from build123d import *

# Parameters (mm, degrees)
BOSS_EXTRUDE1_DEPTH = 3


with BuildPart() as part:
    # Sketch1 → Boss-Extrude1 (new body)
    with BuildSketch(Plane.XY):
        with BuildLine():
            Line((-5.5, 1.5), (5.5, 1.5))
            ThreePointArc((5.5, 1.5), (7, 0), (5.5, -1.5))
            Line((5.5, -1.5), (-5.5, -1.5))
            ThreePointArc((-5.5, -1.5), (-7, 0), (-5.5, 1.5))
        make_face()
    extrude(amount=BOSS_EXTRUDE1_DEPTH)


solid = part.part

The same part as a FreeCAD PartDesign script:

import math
import FreeCAD as App
import Part
import Sketcher
from FreeCAD import Vector
Q = App.Units.Quantity

doc = App.newDocument("Part")
params = doc.addObject("Spreadsheet::Sheet", "Params")
for row, (alias, value) in enumerate([
    ("sketch1_radius", "1.5 mm"),
    ("sketch1_width", "11 mm"),
    ("pad1_length", "3 mm"),
], start=1):
    params.set(f"A{row}", alias)
    params.set(f"B{row}", "=" + value)
    params.setAlias(f"B{row}", alias)

body = doc.addObject("PartDesign::Body", "Body")

# Sketch on XY plane
sketch1 = body.newObject("Sketcher::SketchObject", "Sketch")
sketch1.AttachmentSupport = (doc.getObject("XY_Plane"), [""])
sketch1.MapMode = "FlatFace"
sketch1.addGeometry([
    Part.LineSegment(Vector(5.5, 1.5, 0), Vector(-5.5, 1.5, 0)),
    Part.ArcOfCircle(Part.Circle(Vector(-5.5, 0, 0), Vector(0, 0, 1), 1.5), math.radians(90), math.radians(270)),
    Part.LineSegment(Vector(-5.5, -1.5, 0), Vector(5.5, -1.5, 0)),
    Part.ArcOfCircle(Part.Circle(Vector(5.5, 0, 0), Vector(0, 0, 1), 1.5), math.radians(-90), math.radians(90)),
], False)
sketch1.addConstraint([
    Sketcher.Constraint("Tangent", 0, 2, 1, 1),
    Sketcher.Constraint("Tangent", 1, 2, 2, 1),
    Sketcher.Constraint("Tangent", 2, 2, 3, 1),
    Sketcher.Constraint("Tangent", 3, 2, 0, 1),
    Sketcher.Constraint("Horizontal", 0),
    Sketcher.Constraint("Horizontal", 2),
    Sketcher.Constraint("Symmetric", 1, 3, 3, 3, -1, 1),
    Sketcher.Constraint("Radius", 1, Q("1.5 mm")),
    Sketcher.Constraint("DistanceX", 0, 2, 0, 1, Q("11 mm")),
])
sketch1.setExpression("Constraints[7]", "Params.sketch1_radius")
sketch1.setExpression("Constraints[8]", "Params.sketch1_width")
pad1 = body.newObject("PartDesign::Pad", "Pad")
pad1.Profile = sketch1
pad1.setExpression("Length", "Params.pad1_length")

doc.recompute()
